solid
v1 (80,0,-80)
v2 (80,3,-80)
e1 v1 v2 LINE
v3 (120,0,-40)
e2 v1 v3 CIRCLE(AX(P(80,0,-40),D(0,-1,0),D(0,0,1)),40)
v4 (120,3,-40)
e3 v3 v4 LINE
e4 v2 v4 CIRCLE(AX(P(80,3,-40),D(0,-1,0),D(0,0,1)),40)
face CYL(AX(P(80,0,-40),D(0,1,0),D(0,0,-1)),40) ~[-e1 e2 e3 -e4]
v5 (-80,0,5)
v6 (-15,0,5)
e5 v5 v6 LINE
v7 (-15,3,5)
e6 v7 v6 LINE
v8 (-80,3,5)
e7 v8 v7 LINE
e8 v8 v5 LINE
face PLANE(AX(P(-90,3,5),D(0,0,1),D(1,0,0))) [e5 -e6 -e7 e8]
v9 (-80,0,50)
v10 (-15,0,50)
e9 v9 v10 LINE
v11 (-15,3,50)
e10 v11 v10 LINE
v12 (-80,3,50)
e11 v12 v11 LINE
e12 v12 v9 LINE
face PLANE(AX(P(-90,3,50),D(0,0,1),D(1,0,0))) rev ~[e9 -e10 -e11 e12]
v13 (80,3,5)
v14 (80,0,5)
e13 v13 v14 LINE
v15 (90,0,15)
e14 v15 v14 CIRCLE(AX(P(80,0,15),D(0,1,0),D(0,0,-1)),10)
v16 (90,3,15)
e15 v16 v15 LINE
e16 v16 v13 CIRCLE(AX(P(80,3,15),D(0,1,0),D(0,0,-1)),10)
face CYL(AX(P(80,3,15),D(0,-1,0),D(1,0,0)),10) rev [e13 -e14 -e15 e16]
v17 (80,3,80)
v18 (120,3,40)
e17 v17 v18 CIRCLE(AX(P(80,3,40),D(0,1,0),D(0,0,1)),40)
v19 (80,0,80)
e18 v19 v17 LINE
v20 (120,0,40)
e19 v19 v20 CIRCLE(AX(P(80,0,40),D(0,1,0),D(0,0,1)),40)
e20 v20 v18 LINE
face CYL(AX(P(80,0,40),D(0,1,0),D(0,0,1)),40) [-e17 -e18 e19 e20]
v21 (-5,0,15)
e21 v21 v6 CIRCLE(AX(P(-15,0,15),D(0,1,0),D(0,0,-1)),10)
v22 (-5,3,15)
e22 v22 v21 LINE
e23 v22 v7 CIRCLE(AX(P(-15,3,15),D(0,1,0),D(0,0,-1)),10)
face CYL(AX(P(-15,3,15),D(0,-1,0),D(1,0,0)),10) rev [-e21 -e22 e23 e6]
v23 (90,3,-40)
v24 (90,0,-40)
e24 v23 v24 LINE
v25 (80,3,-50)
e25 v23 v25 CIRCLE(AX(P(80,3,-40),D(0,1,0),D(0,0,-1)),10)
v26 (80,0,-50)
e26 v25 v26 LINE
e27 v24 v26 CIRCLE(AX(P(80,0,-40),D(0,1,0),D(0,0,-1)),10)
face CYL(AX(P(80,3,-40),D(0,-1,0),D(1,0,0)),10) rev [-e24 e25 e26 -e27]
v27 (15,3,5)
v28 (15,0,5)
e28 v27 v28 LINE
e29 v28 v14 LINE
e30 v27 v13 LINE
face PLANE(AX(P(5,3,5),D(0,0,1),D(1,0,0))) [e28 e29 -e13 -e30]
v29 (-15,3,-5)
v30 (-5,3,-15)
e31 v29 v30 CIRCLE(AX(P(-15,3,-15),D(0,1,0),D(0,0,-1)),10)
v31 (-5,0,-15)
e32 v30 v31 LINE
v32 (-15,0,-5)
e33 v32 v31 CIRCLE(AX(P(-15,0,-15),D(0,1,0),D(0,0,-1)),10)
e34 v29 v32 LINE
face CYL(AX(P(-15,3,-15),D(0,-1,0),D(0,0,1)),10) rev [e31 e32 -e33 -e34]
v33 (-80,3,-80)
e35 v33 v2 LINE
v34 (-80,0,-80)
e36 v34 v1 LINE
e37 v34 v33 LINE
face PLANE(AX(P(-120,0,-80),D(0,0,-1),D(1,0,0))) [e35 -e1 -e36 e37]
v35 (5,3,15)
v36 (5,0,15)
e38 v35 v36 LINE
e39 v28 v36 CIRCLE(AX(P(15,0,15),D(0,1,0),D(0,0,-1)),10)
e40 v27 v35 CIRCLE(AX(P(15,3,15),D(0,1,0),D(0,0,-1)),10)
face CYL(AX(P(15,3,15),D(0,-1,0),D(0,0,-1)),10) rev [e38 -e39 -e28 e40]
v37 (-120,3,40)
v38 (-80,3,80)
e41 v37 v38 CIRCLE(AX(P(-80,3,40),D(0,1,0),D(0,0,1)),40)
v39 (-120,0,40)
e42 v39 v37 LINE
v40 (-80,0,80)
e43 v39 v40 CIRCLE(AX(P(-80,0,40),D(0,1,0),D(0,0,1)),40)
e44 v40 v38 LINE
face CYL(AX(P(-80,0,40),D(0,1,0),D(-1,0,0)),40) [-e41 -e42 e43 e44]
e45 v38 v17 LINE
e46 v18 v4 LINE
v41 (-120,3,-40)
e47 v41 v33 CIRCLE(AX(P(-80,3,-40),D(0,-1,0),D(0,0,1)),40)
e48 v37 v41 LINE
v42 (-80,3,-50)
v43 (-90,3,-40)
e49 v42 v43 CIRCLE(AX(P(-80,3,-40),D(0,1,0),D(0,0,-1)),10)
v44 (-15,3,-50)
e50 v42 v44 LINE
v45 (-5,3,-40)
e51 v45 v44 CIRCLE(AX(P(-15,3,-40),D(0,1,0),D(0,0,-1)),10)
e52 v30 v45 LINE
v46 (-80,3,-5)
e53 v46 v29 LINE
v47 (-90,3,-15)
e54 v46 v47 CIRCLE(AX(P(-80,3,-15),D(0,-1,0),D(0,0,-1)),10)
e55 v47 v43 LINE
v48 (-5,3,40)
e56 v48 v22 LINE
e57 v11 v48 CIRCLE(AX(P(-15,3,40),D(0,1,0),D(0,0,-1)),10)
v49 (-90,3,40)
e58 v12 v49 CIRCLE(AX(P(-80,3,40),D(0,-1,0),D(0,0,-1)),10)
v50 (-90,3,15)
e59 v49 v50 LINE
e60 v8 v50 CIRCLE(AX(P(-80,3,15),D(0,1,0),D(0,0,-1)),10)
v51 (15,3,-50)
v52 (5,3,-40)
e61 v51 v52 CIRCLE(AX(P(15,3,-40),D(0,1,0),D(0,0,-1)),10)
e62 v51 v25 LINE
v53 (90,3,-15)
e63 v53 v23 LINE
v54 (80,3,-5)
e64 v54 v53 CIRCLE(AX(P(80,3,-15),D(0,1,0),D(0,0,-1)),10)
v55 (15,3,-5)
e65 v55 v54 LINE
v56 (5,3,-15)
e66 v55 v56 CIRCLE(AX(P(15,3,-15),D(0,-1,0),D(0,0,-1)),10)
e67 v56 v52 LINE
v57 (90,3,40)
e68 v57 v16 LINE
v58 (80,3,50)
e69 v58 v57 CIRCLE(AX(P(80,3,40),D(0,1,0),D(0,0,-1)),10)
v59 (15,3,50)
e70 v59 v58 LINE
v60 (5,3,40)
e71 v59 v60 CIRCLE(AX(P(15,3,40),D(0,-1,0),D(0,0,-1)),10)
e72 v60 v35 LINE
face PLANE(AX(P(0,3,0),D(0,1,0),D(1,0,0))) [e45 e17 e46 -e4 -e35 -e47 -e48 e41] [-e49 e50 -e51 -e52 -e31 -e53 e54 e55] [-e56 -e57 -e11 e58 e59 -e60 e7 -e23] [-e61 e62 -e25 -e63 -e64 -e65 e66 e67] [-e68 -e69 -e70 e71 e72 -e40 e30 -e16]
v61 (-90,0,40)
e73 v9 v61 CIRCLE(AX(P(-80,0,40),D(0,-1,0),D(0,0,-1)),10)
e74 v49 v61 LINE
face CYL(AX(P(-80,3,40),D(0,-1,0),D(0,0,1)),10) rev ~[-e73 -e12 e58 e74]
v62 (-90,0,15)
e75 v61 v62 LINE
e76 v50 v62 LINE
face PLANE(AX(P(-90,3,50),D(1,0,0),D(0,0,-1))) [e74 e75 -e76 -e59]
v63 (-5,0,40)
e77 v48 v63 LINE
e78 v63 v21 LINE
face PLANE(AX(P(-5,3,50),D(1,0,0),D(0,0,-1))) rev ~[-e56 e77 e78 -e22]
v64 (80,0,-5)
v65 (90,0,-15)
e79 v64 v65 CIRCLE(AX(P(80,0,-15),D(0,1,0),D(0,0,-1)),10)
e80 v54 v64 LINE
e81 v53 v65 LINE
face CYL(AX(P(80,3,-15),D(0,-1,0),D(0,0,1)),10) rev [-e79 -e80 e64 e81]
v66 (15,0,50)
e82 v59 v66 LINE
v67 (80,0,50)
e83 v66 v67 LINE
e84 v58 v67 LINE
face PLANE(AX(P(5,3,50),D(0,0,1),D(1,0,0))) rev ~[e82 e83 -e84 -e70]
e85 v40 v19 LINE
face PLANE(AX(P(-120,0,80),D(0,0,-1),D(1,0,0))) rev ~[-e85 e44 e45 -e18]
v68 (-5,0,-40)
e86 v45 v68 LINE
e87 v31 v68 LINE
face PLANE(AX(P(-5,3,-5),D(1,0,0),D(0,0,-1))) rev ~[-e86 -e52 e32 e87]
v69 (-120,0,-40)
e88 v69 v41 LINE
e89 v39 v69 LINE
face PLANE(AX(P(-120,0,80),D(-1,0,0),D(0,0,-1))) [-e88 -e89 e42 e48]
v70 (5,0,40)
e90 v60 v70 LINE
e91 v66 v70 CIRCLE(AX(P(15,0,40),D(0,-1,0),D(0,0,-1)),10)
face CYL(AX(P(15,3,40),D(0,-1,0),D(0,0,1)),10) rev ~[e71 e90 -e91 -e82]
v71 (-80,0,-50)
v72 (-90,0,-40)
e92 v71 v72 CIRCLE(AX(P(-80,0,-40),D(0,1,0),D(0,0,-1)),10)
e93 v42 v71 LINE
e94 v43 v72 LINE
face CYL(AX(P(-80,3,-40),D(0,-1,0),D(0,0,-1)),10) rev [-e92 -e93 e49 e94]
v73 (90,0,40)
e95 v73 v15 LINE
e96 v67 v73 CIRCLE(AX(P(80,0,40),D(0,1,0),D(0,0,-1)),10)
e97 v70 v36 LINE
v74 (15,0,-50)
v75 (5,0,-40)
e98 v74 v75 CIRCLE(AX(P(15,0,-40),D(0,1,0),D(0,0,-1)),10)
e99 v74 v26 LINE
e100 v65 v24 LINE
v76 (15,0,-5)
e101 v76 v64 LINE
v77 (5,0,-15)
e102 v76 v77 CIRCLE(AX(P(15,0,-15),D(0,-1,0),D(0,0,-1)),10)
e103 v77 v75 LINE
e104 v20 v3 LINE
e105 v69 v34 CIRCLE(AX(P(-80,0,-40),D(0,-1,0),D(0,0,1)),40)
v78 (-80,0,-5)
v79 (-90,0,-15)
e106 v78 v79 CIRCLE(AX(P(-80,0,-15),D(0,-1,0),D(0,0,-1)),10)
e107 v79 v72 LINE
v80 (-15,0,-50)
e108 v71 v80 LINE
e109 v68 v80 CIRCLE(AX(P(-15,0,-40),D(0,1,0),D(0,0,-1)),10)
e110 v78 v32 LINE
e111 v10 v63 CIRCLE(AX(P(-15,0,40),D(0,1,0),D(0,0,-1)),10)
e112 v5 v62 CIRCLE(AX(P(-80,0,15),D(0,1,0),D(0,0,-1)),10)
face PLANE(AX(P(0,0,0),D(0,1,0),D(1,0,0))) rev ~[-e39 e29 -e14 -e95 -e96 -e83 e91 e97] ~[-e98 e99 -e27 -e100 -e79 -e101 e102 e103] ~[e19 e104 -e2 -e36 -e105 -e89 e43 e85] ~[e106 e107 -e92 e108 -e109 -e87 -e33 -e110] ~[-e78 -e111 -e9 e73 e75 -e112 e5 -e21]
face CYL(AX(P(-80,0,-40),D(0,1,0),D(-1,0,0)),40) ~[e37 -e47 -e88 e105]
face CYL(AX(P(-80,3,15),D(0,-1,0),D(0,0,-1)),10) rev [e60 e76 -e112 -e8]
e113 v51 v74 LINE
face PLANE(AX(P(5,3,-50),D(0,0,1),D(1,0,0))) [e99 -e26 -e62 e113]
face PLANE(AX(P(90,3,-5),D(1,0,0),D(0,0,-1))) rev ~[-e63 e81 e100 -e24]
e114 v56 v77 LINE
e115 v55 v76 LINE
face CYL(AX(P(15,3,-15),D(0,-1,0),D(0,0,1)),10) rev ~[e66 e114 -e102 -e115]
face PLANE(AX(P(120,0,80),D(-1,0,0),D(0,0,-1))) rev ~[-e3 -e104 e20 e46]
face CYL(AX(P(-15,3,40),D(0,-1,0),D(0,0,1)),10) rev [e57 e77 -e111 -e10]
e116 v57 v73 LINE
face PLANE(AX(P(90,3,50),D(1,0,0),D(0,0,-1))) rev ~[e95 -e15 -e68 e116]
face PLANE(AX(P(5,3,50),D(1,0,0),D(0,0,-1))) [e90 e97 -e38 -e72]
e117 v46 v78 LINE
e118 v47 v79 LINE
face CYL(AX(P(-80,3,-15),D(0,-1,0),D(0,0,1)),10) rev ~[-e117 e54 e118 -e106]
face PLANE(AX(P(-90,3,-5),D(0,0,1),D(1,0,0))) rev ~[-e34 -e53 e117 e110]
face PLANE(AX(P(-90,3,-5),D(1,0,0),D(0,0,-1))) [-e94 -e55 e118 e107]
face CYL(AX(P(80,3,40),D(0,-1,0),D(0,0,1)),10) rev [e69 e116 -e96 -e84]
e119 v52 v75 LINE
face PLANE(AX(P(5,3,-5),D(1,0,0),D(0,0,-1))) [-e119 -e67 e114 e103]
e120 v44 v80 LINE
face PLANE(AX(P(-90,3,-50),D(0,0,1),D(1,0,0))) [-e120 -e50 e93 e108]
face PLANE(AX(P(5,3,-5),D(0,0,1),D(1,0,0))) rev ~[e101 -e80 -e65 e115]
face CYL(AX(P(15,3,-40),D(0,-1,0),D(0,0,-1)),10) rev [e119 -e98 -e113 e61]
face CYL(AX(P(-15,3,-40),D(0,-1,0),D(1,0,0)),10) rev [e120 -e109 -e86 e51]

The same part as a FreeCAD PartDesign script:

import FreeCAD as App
import Part
import Sketcher
from FreeCAD import Vector


def edges_at(feature, points):
    """Names of the edges that pass closest to the given points."""
    edges = feature.Shape.Edges
    near = lambda p: min(range(len(edges)), key=lambda i: edges[i].distToShape(Part.Vertex(*p))[0])
    return sorted({f"Edge{near(p) + 1}" for p in points})


def add_polygon(sketch, points):
    """Adds a closed chain of lines whose ends are joined by coincident constraints."""
    first, n = sketch.GeometryCount, len(points)
    for a, b in zip(points, points[1:] + points[:1]):
        sketch.addGeometry(Part.LineSegment(App.Vector(*a, 0), App.Vector(*b, 0)), False)
    for i in range(n):
        sketch.addConstraint(Sketcher.Constraint("Coincident", first + i, 2, first + (i + 1) % n, 1))

doc = App.newDocument("Part")
body = doc.addObject("PartDesign::Body", "Body")

sketch1 = body.newObject("Sketcher::SketchObject", "Sketch")
sketch1.AttachmentSupport = (doc.getObject("XZ_Plane"), [""])
sketch1.MapMode = "FlatFace"
add_polygon(sketch1, [(-120, -80), (-120, 80), (120, 80), (120, -80)])
sketch1.addConstraint([
    Sketcher.Constraint("Vertical", 0),
    Sketcher.Constraint("Horizontal", 1),
    Sketcher.Constraint("Vertical", 2),
    Sketcher.Constraint("Horizontal", 3),
    Sketcher.Constraint("Symmetric", 0, 2, 2, 2, -1, 1),
    Sketcher.Constraint("DistanceX", 1, 1, 1, 2, 240.0),
    Sketcher.Constraint("DistanceY", 0, 1, 0, 2, 160.0),
])
pad1 = body.newObject("PartDesign::Pad", "Pad")
pad1.Profile = sketch1
pad1.Length = 3
pad1.Reversed = True

sketch2 = body.newObject("Sketcher::SketchObject", "Sketch001")
sketch2.AttachmentSupport = (doc.getObject("XZ_Plane"), [""])
sketch2.MapMode = "FlatFace"
sketch2.AttachmentOffset = App.Placement(Vector(0, 0, -3), App.Rotation())
add_polygon(sketch2, [(-90, 5), (-90, 50), (-5, 50), (-5, 5)])
add_polygon(sketch2, [(5, -50), (5, -5), (90, -5), (90, -50)])
add_polygon(sketch2, [(-90, -50), (-90, -5), (-5, -5), (-5, -50)])
add_polygon(sketch2, [(5, 5), (5, 50), (90, 50), (90, 5)])
sketch2.addConstraint([
    Sketcher.Constraint("Vertical", 0),
    Sketcher.Constraint("Horizontal", 1),
    Sketcher.Constraint("Vertical", 2),
    Sketcher.Constraint("Horizontal", 3),
    Sketcher.Constraint("Vertical", 4),
    Sketcher.Constraint("Horizontal", 5),
    Sketcher.Constraint("Vertical", 6),
    Sketcher.Constraint("Horizontal", 7),
    Sketcher.Constraint("Vertical", 8),
    Sketcher.Constraint("Horizontal", 9),
    Sketcher.Constraint("Vertical", 10),
    Sketcher.Constraint("Horizontal", 11),
    Sketcher.Constraint("Vertical", 12),
    Sketcher.Constraint("Horizontal", 13),
    Sketcher.Constraint("Vertical", 14),
    Sketcher.Constraint("Horizontal", 15),
    Sketcher.Constraint("Symmetric", 2, 2, 4, 2, -1, 1),
    Sketcher.Constraint("Symmetric", 0, 2, 6, 2, -1, 1),
    Sketcher.Constraint("Symmetric", 10, 2, 12, 2, -1, 1),
    Sketcher.Constraint("Symmetric", 8, 2, 14, 2, -1, 1),
    Sketcher.Constraint("Symmetric", 5, 2, 8, 2, -2),
    Sketcher.Constraint("Symmetric", 7, 2, 10, 2, -2),
    Sketcher.Constraint("DistanceX", 1, 1, 1, 2, 85.0),
    Sketcher.Constraint("DistanceY", 0, 1, 0, 2, 45.0),
    Sketcher.Constraint("DistanceX", 0, 2, -1, 1, 90.0),
    Sketcher.Constraint("DistanceY", -1, 1, 0, 2, 50.0),
])
pocket1 = body.newObject("PartDesign::Pocket", "Pocket")
pocket1.Profile = sketch2
pocket1.Type = "ThroughAll"
pocket1.Reversed = True
doc.recompute()

fillet = body.newObject("PartDesign::Fillet", "Fillet")
fillet.Base = (pocket1, edges_at(pocket1, [
    (-120, 1.5, -80),
    (120, 1.5, -80),
    (120, 1.5, 80),
    (-120, 1.5, 80),
]))
fillet.Radius = 40
doc.recompute()

fillet2 = body.newObject("PartDesign::Fillet", "Fillet001")
fillet2.Base = (fillet, edges_at(fillet, [
    (-90, 1.5, -5),
    (-90, 1.5, -50),
    (-5, 1.5, -50),
    (-5, 1.5, -5),
    (-90, 1.5, 5),
    (-5, 1.5, 5),
    (-5, 1.5, 50),
    (-90, 1.5, 50),
    (90, 1.5, 50),
    (5, 1.5, 50),
    (5, 1.5, 5),
    (90, 1.5, 5),
    (5, 1.5, -50),
    (90, 1.5, -50),
    (90, 1.5, -5),
    (5, 1.5, -5),
]))
fillet2.Radius = 10

doc.recompute()
